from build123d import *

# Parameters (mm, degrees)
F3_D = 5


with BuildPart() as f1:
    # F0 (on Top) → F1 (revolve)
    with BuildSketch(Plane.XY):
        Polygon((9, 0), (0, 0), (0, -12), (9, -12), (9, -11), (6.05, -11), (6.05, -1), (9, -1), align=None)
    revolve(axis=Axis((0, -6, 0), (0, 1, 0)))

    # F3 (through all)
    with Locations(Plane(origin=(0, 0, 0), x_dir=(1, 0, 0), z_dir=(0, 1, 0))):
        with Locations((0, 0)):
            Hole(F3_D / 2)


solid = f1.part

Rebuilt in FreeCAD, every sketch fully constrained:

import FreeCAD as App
import Part
import Sketcher

V = App.Vector
Q = App.Units.Quantity

doc = App.newDocument("Part")
body = doc.addObject("PartDesign::Body", "Body")

# Sketch on XY plane
sketch1 = doc.addObject("Sketcher::SketchObject", "Sketch")
body.addObject(sketch1)
sketch1.AttachmentSupport = (doc.XY_Plane, [""])
sketch1.MapMode = "FlatFace"
sketch1.addGeometry([
    Part.LineSegment(V(9, 0, 0), V(0, 0, 0)),  # 0
    Part.LineSegment(V(0, 0, 0), V(0, -12, 0)),  # 1
    Part.LineSegment(V(0, -12, 0), V(9, -12, 0)),  # 2
    Part.LineSegment(V(9, -12, 0), V(9, -11, 0)),  # 3
    Part.LineSegment(V(9, -11, 0), V(6.05, -11, 0)),  # 4
    Part.LineSegment(V(6.05, -11, 0), V(6.05, -1, 0)),  # 5
    Part.LineSegment(V(6.05, -1, 0), V(9, -1, 0)),  # 6
    Part.LineSegment(V(9, -1, 0), V(9, 0, 0)),  # 7
], False)
sketch1.addConstraint([
    Sketcher.Constraint("Coincident", 0, 2, 1, 1),
    Sketcher.Constraint("Coincident", 1, 2, 2, 1),
    Sketcher.Constraint("Coincident", 2, 2, 3, 1),
    Sketcher.Constraint("Coincident", 3, 2, 4, 1),
    Sketcher.Constraint("Coincident", 4, 2, 5, 1),
    Sketcher.Constraint("Coincident", 5, 2, 6, 1),
    Sketcher.Constraint("Coincident", 6, 2, 7, 1),
    Sketcher.Constraint("Coincident", 7, 2, 0, 1),
    Sketcher.Constraint("Horizontal", 0),
    Sketcher.Constraint("Vertical", 1),
    Sketcher.Constraint("Horizontal", 2),
    Sketcher.Constraint("Vertical", 3),
    Sketcher.Constraint("Horizontal", 4),
    Sketcher.Constraint("Vertical", 5),
    Sketcher.Constraint("Horizontal", 6),
    Sketcher.Constraint("Vertical", 7),
    Sketcher.Constraint("Coincident", 0, 2, -1, 1),
    Sketcher.Constraint("Vertical", 3, 2, 6, 2),
    Sketcher.Constraint("Equal", 3, 7),
    Sketcher.Constraint("DistanceX", 0, 2, 0, 1, Q("9 mm")),
    Sketcher.Constraint("DistanceY", 1, 2, 1, 1, Q("12 mm")),
    Sketcher.Constraint("DistanceY", 3, 1, 3, 2, Q("1 mm")),
    Sketcher.Constraint("DistanceX", 4, 2, 4, 1, Q("2.95 mm")),
])
revolution = doc.addObject("PartDesign::Revolution", "Revolution")
body.addObject(revolution)
revolution.Profile = sketch1
revolution.ReferenceAxis = (sketch1, ["V_Axis"])
revolution.Angle = 360

# Sketch on XZ plane
sketch2 = doc.addObject("Sketcher::SketchObject", "Sketch001")
body.addObject(sketch2)
sketch2.AttachmentSupport = (doc.XZ_Plane, [""])
sketch2.MapMode = "FlatFace"
sketch2.addGeometry(Part.Circle(V(0, 0, 0), V(0, 0, 1), 2.5), False)
sketch2.addConstraint([
    Sketcher.Constraint("Coincident", 0, 3, -1, 1),
    Sketcher.Constraint("Diameter", 0, Q("5 mm")),
])
doc.recompute()
hole = doc.addObject("PartDesign::Hole", "Hole")
body.addObject(hole)
hole.Profile = sketch2
hole.ThreadType = "None"
hole.Diameter = 5
hole.DepthType = "ThroughAll"
hole.Reversed = True

doc.recompute()
